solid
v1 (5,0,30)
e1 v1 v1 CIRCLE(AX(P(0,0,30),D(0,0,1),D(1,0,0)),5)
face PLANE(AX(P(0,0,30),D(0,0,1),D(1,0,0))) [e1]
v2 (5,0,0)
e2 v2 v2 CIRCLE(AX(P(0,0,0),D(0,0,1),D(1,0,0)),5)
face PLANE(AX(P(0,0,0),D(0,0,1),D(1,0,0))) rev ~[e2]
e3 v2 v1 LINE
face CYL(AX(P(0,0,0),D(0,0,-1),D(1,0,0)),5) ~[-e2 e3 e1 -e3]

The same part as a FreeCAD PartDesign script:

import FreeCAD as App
import Part
import Sketcher

doc = App.newDocument("Part")
body = doc.addObject("PartDesign::Body", "Body")

# Sketch on XY plane
sketch1 = doc.addObject("Sketcher::SketchObject", "Sketch")
body.addObject(sketch1)
sketch1.AttachmentSupport = (doc.XY_Plane, [""])
sketch1.MapMode = "FlatFace"
sketch1.addGeometry(Part.Circle(App.Vector(0, 0, 0), App.Vector(0, 0, 1), 5), False)
sketch1.addConstraint([
    Sketcher.Constraint("Coincident", 0, 3, -1, 1),
    Sketcher.Constraint("Diameter", 0, 10.0),
])
pad1 = doc.addObject("PartDesign::Pad", "Pad")
body.addObject(pad1)
pad1.Profile = sketch1
pad1.Length = 30

doc.recompute()
